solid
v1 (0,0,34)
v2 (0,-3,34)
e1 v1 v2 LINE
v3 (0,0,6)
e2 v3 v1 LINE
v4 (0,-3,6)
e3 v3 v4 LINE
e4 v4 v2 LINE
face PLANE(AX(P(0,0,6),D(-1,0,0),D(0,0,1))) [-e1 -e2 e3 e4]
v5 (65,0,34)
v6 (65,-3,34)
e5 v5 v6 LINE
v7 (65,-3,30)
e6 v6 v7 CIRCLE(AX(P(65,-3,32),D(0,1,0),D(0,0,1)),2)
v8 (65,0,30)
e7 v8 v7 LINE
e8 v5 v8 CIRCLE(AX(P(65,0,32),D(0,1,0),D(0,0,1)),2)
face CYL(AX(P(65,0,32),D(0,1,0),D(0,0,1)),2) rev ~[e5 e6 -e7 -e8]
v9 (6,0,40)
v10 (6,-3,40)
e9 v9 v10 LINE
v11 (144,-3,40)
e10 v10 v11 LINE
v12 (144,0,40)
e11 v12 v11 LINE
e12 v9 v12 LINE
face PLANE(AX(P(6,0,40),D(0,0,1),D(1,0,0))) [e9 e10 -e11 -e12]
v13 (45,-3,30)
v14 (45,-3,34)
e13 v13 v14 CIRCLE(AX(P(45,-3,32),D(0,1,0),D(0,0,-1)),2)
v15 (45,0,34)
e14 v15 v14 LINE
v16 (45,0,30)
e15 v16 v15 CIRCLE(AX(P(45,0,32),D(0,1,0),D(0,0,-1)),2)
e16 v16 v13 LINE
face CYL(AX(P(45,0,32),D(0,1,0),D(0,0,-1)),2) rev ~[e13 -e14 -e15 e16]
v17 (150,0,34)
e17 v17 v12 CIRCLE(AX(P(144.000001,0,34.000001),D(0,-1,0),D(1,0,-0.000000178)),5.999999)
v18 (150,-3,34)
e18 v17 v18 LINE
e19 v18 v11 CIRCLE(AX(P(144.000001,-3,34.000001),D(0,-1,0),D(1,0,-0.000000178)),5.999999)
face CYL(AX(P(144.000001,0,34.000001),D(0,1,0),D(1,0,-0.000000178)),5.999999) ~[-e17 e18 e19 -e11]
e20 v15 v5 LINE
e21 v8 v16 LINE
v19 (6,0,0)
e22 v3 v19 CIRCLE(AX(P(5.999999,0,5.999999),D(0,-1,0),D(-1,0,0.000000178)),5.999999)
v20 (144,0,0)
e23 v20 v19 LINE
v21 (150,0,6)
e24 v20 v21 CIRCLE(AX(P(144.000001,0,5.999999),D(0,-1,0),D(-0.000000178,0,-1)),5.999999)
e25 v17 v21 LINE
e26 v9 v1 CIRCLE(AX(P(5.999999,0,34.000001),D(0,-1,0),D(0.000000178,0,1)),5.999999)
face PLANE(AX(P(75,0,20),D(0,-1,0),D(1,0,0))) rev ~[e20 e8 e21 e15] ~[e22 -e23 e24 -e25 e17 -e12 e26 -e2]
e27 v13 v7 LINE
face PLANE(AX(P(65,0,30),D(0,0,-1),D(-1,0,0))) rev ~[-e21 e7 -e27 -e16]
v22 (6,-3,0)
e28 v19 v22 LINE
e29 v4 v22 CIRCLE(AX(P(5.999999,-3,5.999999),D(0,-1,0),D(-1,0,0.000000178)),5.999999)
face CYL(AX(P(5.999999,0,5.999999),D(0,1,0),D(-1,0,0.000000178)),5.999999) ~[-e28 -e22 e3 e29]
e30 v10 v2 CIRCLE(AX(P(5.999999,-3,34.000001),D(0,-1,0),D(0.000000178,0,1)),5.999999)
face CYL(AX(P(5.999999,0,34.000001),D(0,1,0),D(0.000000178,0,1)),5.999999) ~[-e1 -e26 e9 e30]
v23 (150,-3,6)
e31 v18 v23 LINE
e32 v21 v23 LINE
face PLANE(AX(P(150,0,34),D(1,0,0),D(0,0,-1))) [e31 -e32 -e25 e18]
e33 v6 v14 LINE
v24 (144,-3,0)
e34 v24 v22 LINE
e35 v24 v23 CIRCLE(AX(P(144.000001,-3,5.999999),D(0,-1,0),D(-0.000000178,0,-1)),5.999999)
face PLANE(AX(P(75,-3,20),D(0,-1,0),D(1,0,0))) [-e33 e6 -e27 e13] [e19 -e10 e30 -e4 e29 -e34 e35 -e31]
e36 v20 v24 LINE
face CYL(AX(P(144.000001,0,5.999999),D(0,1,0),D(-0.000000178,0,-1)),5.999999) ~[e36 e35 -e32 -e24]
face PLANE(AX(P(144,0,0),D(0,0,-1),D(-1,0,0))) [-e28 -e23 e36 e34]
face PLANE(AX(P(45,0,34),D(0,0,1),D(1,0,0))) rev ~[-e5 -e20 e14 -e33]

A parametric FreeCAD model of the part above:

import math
import FreeCAD as App
import Part
import Sketcher

V = App.Vector
Q = App.Units.Quantity

doc = App.newDocument("Part")
params = doc.addObject("Spreadsheet::Sheet", "Params")
for row, (alias, value) in enumerate([
    ("sketch1_radius", "5.999999 mm"),
    ("sketch1_width", "138 mm"),
    ("sketch1_height", "28 mm"),
    ("pad1_length", "3 mm"),
    ("sketch2_radius", "2 mm"),
    ("sketch2_width", "20 mm"),
], start=1):
    params.set(f"A{row}", alias)
    params.set(f"B{row}", "=" + value)
    params.setAlias(f"B{row}", alias)

body = doc.addObject("PartDesign::Body", "Body")

sketch1 = doc.addObject("Sketcher::SketchObject", "Sketch")
body.addObject(sketch1)
sketch1.AttachmentSupport = (doc.XZ_Plane, [""])
sketch1.MapMode = "FlatFace"
sketch1.addGeometry([
    Part.ArcOfCircle(Part.Circle(V(6, 34, 0), V(0, 0, 1), 6), math.radians(90), math.radians(180)),
    Part.LineSegment(V(0, 34, 0), V(0, 6, 0)),
    Part.ArcOfCircle(Part.Circle(V(6, 6, 0), V(0, 0, 1), 6), math.radians(180), math.radians(270)),
    Part.LineSegment(V(6, 0, 0), V(144, 0, 0)),
    Part.ArcOfCircle(Part.Circle(V(144, 6, 0), V(0, 0, 1), 6), math.radians(-90), math.radians(0)),
    Part.LineSegment(V(150, 6, 0), V(150, 34, 0)),
    Part.ArcOfCircle(Part.Circle(V(144, 34, 0), V(0, 0, 1), 6), math.radians(0), math.radians(90)),
    Part.LineSegment(V(144, 40, 0), V(6, 40, 0)),
], False)
sketch1.addConstraint([
    Sketcher.Constraint("Tangent", 0, 2, 1, 1),
    Sketcher.Constraint("Tangent", 1, 2, 2, 1),
    Sketcher.Constraint("Tangent", 2, 2, 3, 1),
    Sketcher.Constraint("Tangent", 3, 2, 4, 1),
    Sketcher.Constraint("Tangent", 4, 2, 5, 1),
    Sketcher.Constraint("Tangent", 5, 2, 6, 1),
    Sketcher.Constraint("Tangent", 6, 2, 7, 1),
    Sketcher.Constraint("Tangent", 7, 2, 0, 1),
    Sketcher.Constraint("Vertical", 1),
    Sketcher.Constraint("Horizontal", 3),
    Sketcher.Constraint("Vertical", 5),
    Sketcher.Constraint("Horizontal", 7),
    Sketcher.Constraint("Equal", 0, 2),
    Sketcher.Constraint("Equal", 2, 4),
    Sketcher.Constraint("Equal", 4, 6),
    Sketcher.Constraint("PointOnObject", 0, 2, -2),
    Sketcher.Constraint("PointOnObject", 2, 2, -1),
    Sketcher.Constraint("Radius", 0, Q("5.999999 mm")),
    Sketcher.Constraint("DistanceX", 3, 1, 3, 2, Q("138 mm")),
    Sketcher.Constraint("DistanceY", 1, 2, 1, 1, Q("28 mm")),
])
sketch1.setExpression("Constraints[17]", "Params.sketch1_radius")
sketch1.setExpression("Constraints[18]", "Params.sketch1_width")
sketch1.setExpression("Constraints[19]", "Params.sketch1_height")
pad1 = doc.addObject("PartDesign::Pad", "Pad")
body.addObject(pad1)
pad1.Profile = sketch1
pad1.setExpression("Length", "Params.pad1_length")

sketch2 = doc.addObject("Sketcher::SketchObject", "Sketch001")
body.addObject(sketch2)
sketch2.AttachmentSupport = (doc.XZ_Plane, [""])
sketch2.MapMode = "FlatFace"
sketch2.addGeometry([
    Part.ArcOfCircle(Part.Circle(V(45, 32, 0), V(0, 0, 1), 2), math.radians(90), math.radians(270)),
    Part.LineSegment(V(45, 34, 0), V(65, 34, 0)),
    Part.ArcOfCircle(Part.Circle(V(65, 32, 0), V(0, 0, 1), 2), math.radians(-90), math.radians(90)),
    Part.LineSegment(V(65, 30, 0), V(45, 30, 0)),
], False)
sketch2.addConstraint([
    Sketcher.Constraint("Tangent", 0, 1, 1, 1),
    Sketcher.Constraint("Tangent", 1, 2, 2, 2),
    Sketcher.Constraint("Tangent", 2, 1, 3, 1),
    Sketcher.Constraint("Tangent", 3, 2, 0, 2),
    Sketcher.Constraint("Horizontal", 1),
    Sketcher.Constraint("Horizontal", 3),
    Sketcher.Constraint("Radius", 0, Q("2 mm")),
    Sketcher.Constraint("DistanceX", 1, 1, 1, 2, Q("20 mm")),
    Sketcher.Constraint("DistanceX", -1, 1, 0, 3, Q("45 mm")),
    Sketcher.Constraint("DistanceY", -1, 1, 0, 3, Q("32 mm")),
])
sketch2.setExpression("Constraints[6]", "Params.sketch2_radius")
sketch2.setExpression("Constraints[7]", "Params.sketch2_width")
pocket1 = doc.addObject("PartDesign::Pocket", "Pocket")
body.addObject(pocket1)
pocket1.Profile = sketch2
pocket1.Type = "ThroughAll"
pocket1.Reversed = True

doc.recompute()
